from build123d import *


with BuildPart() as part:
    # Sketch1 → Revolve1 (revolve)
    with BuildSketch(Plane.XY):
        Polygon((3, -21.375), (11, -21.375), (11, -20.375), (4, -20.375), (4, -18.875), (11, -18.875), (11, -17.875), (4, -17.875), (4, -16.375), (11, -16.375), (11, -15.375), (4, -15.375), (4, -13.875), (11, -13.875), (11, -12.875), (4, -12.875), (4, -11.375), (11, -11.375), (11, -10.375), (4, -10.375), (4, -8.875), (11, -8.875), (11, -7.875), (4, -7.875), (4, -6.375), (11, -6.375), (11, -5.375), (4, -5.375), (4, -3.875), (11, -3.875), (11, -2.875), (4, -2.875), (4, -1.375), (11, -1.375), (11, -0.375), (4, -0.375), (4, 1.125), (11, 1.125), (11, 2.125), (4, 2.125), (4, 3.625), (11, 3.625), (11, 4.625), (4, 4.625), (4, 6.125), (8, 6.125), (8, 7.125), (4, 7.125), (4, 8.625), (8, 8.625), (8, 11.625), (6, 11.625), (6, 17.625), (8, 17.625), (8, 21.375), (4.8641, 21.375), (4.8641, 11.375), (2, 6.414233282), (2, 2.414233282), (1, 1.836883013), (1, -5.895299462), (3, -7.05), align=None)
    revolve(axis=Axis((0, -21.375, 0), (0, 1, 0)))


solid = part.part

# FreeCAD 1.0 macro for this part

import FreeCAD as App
import Part
import Sketcher
from FreeCAD import Vector
Q = App.Units.Quantity

doc = App.newDocument("Part")
body = doc.addObject("PartDesign::Body", "Body")

sketch1 = body.newObject("Sketcher::SketchObject", "Sketch")
sketch1.AttachmentSupport = (doc.getObject("XY_Plane"), [""])
sketch1.MapMode = "FlatFace"
sketch1.addGeometry([
    Part.LineSegment(Vector(3, -21.4, 0), Vector(11, -21.4, 0)),
    Part.LineSegment(Vector(11, -21.4, 0), Vector(11, -20.4, 0)),
    Part.LineSegment(Vector(11, -20.4, 0), Vector(4, -20.4, 0)),
    Part.LineSegment(Vector(4, -20.4, 0), Vector(4, -18.9, 0)),
    Part.LineSegment(Vector(4, -18.9, 0), Vector(11, -18.9, 0)),
    Part.LineSegment(Vector(11, -18.9, 0), Vector(11, -17.9, 0)),
    Part.LineSegment(Vector(11, -17.9, 0), Vector(4, -17.9, 0)),
    Part.LineSegment(Vector(4, -17.9, 0), Vector(4, -16.4, 0)),
    Part.LineSegment(Vector(4, -16.4, 0), Vector(11, -16.4, 0)),
    Part.LineSegment(Vector(11, -16.4, 0), Vector(11, -15.4, 0)),
    Part.LineSegment(Vector(11, -15.4, 0), Vector(4, -15.4, 0)),
    Part.LineSegment(Vector(4, -15.4, 0), Vector(4, -13.9, 0)),
    Part.LineSegment(Vector(4, -13.9, 0), Vector(11, -13.9, 0)),
    Part.LineSegment(Vector(11, -13.9, 0), Vector(11, -12.9, 0)),
    Part.LineSegment(Vector(11, -12.9, 0), Vector(4, -12.9, 0)),
    Part.LineSegment(Vector(4, -12.9, 0), Vector(4, -11.4, 0)),
    Part.LineSegment(Vector(4, -11.4, 0), Vector(11, -11.4, 0)),
    Part.LineSegment(Vector(11, -11.4, 0), Vector(11, -10.4, 0)),
    Part.LineSegment(Vector(11, -10.4, 0), Vector(4, -10.4, 0)),
    Part.LineSegment(Vector(4, -10.4, 0), Vector(4, -8.9, 0)),
    Part.LineSegment(Vector(4, -8.9, 0), Vector(11, -8.9, 0)),
    Part.LineSegment(Vector(11, -8.9, 0), Vector(11, -7.9, 0)),
    Part.LineSegment(Vector(11, -7.9, 0), Vector(4, -7.9, 0)),
    Part.LineSegment(Vector(4, -7.9, 0), Vector(4, -6.4, 0)),
    Part.LineSegment(Vector(4, -6.4, 0), Vector(11, -6.4, 0)),
    Part.LineSegment(Vector(11, -6.4, 0), Vector(11, -5.4, 0)),
    Part.LineSegment(Vector(11, -5.4, 0), Vector(4, -5.4, 0)),
    Part.LineSegment(Vector(4, -5.4, 0), Vector(4, -3.9, 0)),
    Part.LineSegment(Vector(4, -3.9, 0), Vector(11, -3.9, 0)),
    Part.LineSegment(Vector(11, -3.9, 0), Vector(11, -2.9, 0)),
    Part.LineSegment(Vector(11, -2.9, 0), Vector(4, -2.9, 0)),
    Part.LineSegment(Vector(4, -2.9, 0), Vector(4, -1.4, 0)),
    Part.LineSegment(Vector(4, -1.4, 0), Vector(11, -1.4, 0)),
    Part.LineSegment(Vector(11, -1.4, 0), Vector(11, -0.4, 0)),
    Part.LineSegment(Vector(11, -0.4, 0), Vector(4, -0.4, 0)),
    Part.LineSegment(Vector(4, -0.4, 0), Vector(4, 1.1, 0)),
    Part.LineSegment(Vector(4, 1.1, 0), Vector(11, 1.1, 0)),
    Part.LineSegment(Vector(11, 1.1, 0), Vector(11, 2.1, 0)),
    Part.LineSegment(Vector(11, 2.1, 0), Vector(4, 2.1, 0)),
    Part.LineSegment(Vector(4, 2.1, 0), Vector(4, 3.6, 0)),
    Part.LineSegment(Vector(4, 3.6, 0), Vector(11, 3.6, 0)),
    Part.LineSegment(Vector(11, 3.6, 0), Vector(11, 4.6, 0)),
    Part.LineSegment(Vector(11, 4.6, 0), Vector(4, 4.6, 0)),
    Part.LineSegment(Vector(4, 4.6, 0), Vector(4, 6.1, 0)),
    Part.LineSegment(Vector(4, 6.1, 0), Vector(8, 6.1, 0)),
    Part.LineSegment(Vector(8, 6.1, 0), Vector(8, 7.1, 0)),
    Part.LineSegment(Vector(8, 7.1, 0), Vector(4, 7.1, 0)),
    Part.LineSegment(Vector(4, 7.1, 0), Vector(4, 8.6, 0)),
    Part.LineSegment(Vector(4, 8.6, 0), Vector(8, 8.6, 0)),
    Part.LineSegment(Vector(8, 8.6, 0), Vector(8, 11.6, 0)),
    Part.LineSegment(Vector(8, 11.6, 0), Vector(6, 11.6, 0)),
    Part.LineSegment(Vector(6, 11.6, 0), Vector(6, 17.6, 0)),
    Part.LineSegment(Vector(6, 17.6, 0), Vector(8, 17.6, 0)),
    Part.LineSegment(Vector(8, 17.6, 0), Vector(8, 21.4, 0)),
    Part.LineSegment(Vector(8, 21.4, 0), Vector(4.9, 21.4, 0)),
    Part.LineSegment(Vector(4.9, 21.4, 0), Vector(4.9, 11.4, 0)),
    Part.LineSegment(Vector(4.9, 11.4, 0), Vector(2, 6.4, 0)),
    Part.LineSegment(Vector(2, 6.4, 0), Vector(2, 2.4, 0)),
    Part.LineSegment(Vector(2, 2.4, 0), Vector(1, 1.8, 0)),
    Part.LineSegment(Vector(1, 1.8, 0), Vector(1, -5.9, 0)),
    Part.LineSegment(Vector(1, -5.9, 0), Vector(3, -7, 0)),
    Part.LineSegment(Vector(3, -7, 0), Vector(3, -21.4, 0)),
], False)
sketch1.addConstraint([
    Sketcher.Constraint("Coincident", 0, 2, 1, 1),
    Sketcher.Constraint("Coincident", 1, 2, 2, 1),
    Sketcher.Constraint("Coincident", 2, 2, 3, 1),
    Sketcher.Constraint("Coincident", 3, 2, 4, 1),
    Sketcher.Constraint("Coincident", 4, 2, 5, 1),
    Sketcher.Constraint("Coincident", 5, 2, 6, 1),
    Sketcher.Constraint("Coincident", 6, 2, 7, 1),
    Sketcher.Constraint("Coincident", 7, 2, 8, 1),
    Sketcher.Constraint("Coincident", 8, 2, 9, 1),
    Sketcher.Constraint("Coincident", 9, 2, 10, 1),
    Sketcher.Constraint("Coincident", 10, 2, 11, 1),
    Sketcher.Constraint("Coincident", 11, 2, 12, 1),
    Sketcher.Constraint("Coincident", 12, 2, 13, 1),
    Sketcher.Constraint("Coincident", 13, 2, 14, 1),
    Sketcher.Constraint("Coincident", 14, 2, 15, 1),
    Sketcher.Constraint("Coincident", 15, 2, 16, 1),
    Sketcher.Constraint("Coincident", 16, 2, 17, 1),
    Sketcher.Constraint("Coincident", 17, 2, 18, 1),
    Sketcher.Constraint("Coincident", 18, 2, 19, 1),
    Sketcher.Constraint("Coincident", 19, 2, 20, 1),
    Sketcher.Constraint("Coincident", 20, 2, 21, 1),
    Sketcher.Constraint("Coincident", 21, 2, 22, 1),
    Sketcher.Constraint("Coincident", 22, 2, 23, 1),
    Sketcher.Constraint("Coincident", 23, 2, 24, 1),
    Sketcher.Constraint("Coincident", 24, 2, 25, 1),
    Sketcher.Constraint("Coincident", 25, 2, 26, 1),
    Sketcher.Constraint("Coincident", 26, 2, 27, 1),
    Sketcher.Constraint("Coincident", 27, 2, 28, 1),
    Sketcher.Constraint("Coincident", 28, 2, 29, 1),
    Sketcher.Constraint("Coincident", 29, 2, 30, 1),
    Sketcher.Constraint("Coincident", 30, 2, 31, 1),
    Sketcher.Constraint("Coincident", 31, 2, 32, 1),
    Sketcher.Constraint("Coincident", 32, 2, 33, 1),
    Sketcher.Constraint("Coincident", 33, 2, 34, 1),
    Sketcher.Constraint("Coincident", 34, 2, 35, 1),
    Sketcher.Constraint("Coincident", 35, 2, 36, 1),
    Sketcher.Constraint("Coincident", 36, 2, 37, 1),
    Sketcher.Constraint("Coincident", 37, 2, 38, 1),
    Sketcher.Constraint("Coincident", 38, 2, 39, 1),
    Sketcher.Constraint("Coincident", 39, 2, 40, 1),
    Sketcher.Constraint("Coincident", 40, 2, 41, 1),
    Sketcher.Constraint("Coincident", 41, 2, 42, 1),
    Sketcher.Constraint("Coincident", 42, 2, 43, 1),
    Sketcher.Constraint("Coincident", 43, 2, 44, 1),
    Sketcher.Constraint("Coincident", 44, 2, 45, 1),
    Sketcher.Constraint("Coincident", 45, 2, 46, 1),
    Sketcher.Constraint("Coincident", 46, 2, 47, 1),
    Sketcher.Constraint("Coincident", 47, 2, 48, 1),
    Sketcher.Constraint("Coincident", 48, 2, 49, 1),
    Sketcher.Constraint("Coincident", 49, 2, 50, 1),
    Sketcher.Constraint("Coincident", 50, 2, 51, 1),
    Sketcher.Constraint("Coincident", 51, 2, 52, 1),
    Sketcher.Constraint("Coincident", 52, 2, 53, 1),
    Sketcher.Constraint("Coincident", 53, 2, 54, 1),
    Sketcher.Constraint("Coincident", 54, 2, 55, 1),
    Sketcher.Constraint("Coincident", 55, 2, 56, 1),
    Sketcher.Constraint("Coincident", 56, 2, 57, 1),
    Sketcher.Constraint("Coincident", 57, 2, 58, 1),
    Sketcher.Constraint("Coincident", 58, 2, 59, 1),
    Sketcher.Constraint("Coincident", 59, 2, 60, 1),
    Sketcher.Constraint("Coincident", 60, 2, 61, 1),
    Sketcher.Constraint("Coincident", 61, 2, 0, 1),
    Sketcher.Constraint("Horizontal", 0),
    Sketcher.Constraint("Vertical", 1),
    Sketcher.Constraint("Horizontal", 2),
    Sketcher.Constraint("Vertical", 3),
    Sketcher.Constraint("Horizontal", 4),
    Sketcher.Constraint("Vertical", 5),
    Sketcher.Constraint("Horizontal", 6),
    Sketcher.Constraint("Vertical", 7),
    Sketcher.Constraint("Horizontal", 8),
    Sketcher.Constraint("Vertical", 9),
    Sketcher.Constraint("Horizontal", 10),
    Sketcher.Constraint("Vertical", 11),
    Sketcher.Constraint("Horizontal", 12),
    Sketcher.Constraint("Vertical", 13),
    Sketcher.Constraint("Horizontal", 14),
    Sketcher.Constraint("Vertical", 15),
    Sketcher.Constraint("Horizontal", 16),
    Sketcher.Constraint("Vertical", 17),
    Sketcher.Constraint("Horizontal", 18),
    Sketcher.Constraint("Vertical", 19),
    Sketcher.Constraint("Horizontal", 20),
    Sketcher.Constraint("Vertical", 21),
    Sketcher.Constraint("Horizontal", 22),
    Sketcher.Constraint("Vertical", 23),
    Sketcher.Constraint("Horizontal", 24),
    Sketcher.Constraint("Vertical", 25),
    Sketcher.Constraint("Horizontal", 26),
    Sketcher.Constraint("Vertical", 27),
    Sketcher.Constraint("Horizontal", 28),
    Sketcher.Constraint("Vertical", 29),
    Sketcher.Constraint("Horizontal", 30),
    Sketcher.Constraint("Vertical", 31),
    Sketcher.Constraint("Horizontal", 32),
    Sketcher.Constraint("Vertical", 33),
    Sketcher.Constraint("Horizontal", 34),
    Sketcher.Constraint("Vertical", 35),
    Sketcher.Constraint("Horizontal", 36),
    Sketcher.Constraint("Vertical", 37),
    Sketcher.Constraint("Horizontal", 38),
    Sketcher.Constraint("Vertical", 39),
    Sketcher.Constraint("Horizontal", 40),
    Sketcher.Constraint("Vertical", 41),
    Sketcher.Constraint("Horizontal", 42),
    Sketcher.Constraint("Vertical", 43),
    Sketcher.Constraint("Horizontal", 44),
    Sketcher.Constraint("Vertical", 45),
    Sketcher.Constraint("Horizontal", 46),
    Sketcher.Constraint("Vertical", 47),
    Sketcher.Constraint("Horizontal", 48),
    Sketcher.Constraint("Vertical", 49),
    Sketcher.Constraint("Horizontal", 50),
    Sketcher.Constraint("Vertical", 51),
    Sketcher.Constraint("Horizontal", 52),
    Sketcher.Constraint("Vertical", 53),
    Sketcher.Constraint("Horizontal", 54),
    Sketcher.Constraint("Vertical", 55),
    Sketcher.Constraint("Vertical", 57),
    Sketcher.Constraint("Vertical", 59),
    Sketcher.Constraint("Vertical", 61),
    Sketcher.Constraint("Perpendicular", 56, 60),
    Sketcher.Constraint("Vertical", 1, 2, 4, 2),
    Sketcher.Constraint("Vertical", 3, 2, 6, 2),
    Sketcher.Constraint("Vertical", 5, 2, 8, 2),
    Sketcher.Constraint("Vertical", 7, 2, 10, 2),
    Sketcher.Constraint("Vertical", 9, 2, 12, 2),
    Sketcher.Constraint("Vertical", 11, 2, 14, 2),
    Sketcher.Constraint("Vertical", 13, 2, 16, 2),
    Sketcher.Constraint("Vertical", 15, 2, 18, 2),
    Sketcher.Constraint("Vertical", 17, 2, 20, 2),
    Sketcher.Constraint("Vertical", 19, 2, 22, 2),
    Sketcher.Constraint("Vertical", 21, 2, 24, 2),
    Sketcher.Constraint("Vertical", 23, 2, 26, 2),
    Sketcher.Constraint("Vertical", 25, 2, 28, 2),
    Sketcher.Constraint("Vertical", 27, 2, 30, 2),
    Sketcher.Constraint("Vertical", 29, 2, 32, 2),
    Sketcher.Constraint("Vertical", 31, 2, 34, 2),
    Sketcher.Constraint("Vertical", 33, 2, 36, 2),
    Sketcher.Constraint("Vertical", 35, 2, 38, 2),
    Sketcher.Constraint("Vertical", 37, 2, 40, 2),
    Sketcher.Constraint("Vertical", 39, 2, 42, 2),
    Sketcher.Constraint("Vertical", 43, 2, 46, 2),
    Sketcher.Constraint("Vertical", 45, 2, 48, 2),
    Sketcher.Constraint("Vertical", 49, 2, 52, 2),
    Sketcher.Constraint("Equal", 1, 5),
    Sketcher.Constraint("Equal", 3, 7),
    Sketcher.Constraint("Equal", 5, 9),
    Sketcher.Constraint("Equal", 7, 11),
    Sketcher.Constraint("Equal", 9, 13),
    Sketcher.Constraint("Equal", 11, 15),
    Sketcher.Constraint("Equal", 13, 17),
    Sketcher.Constraint("Equal", 15, 19),
    Sketcher.Constraint("Equal", 17, 21),
    Sketcher.Constraint("Equal", 19, 23),
    Sketcher.Constraint("Equal", 21, 25),
    Sketcher.Constraint("Equal", 23, 27),
    Sketcher.Constraint("Equal", 25, 29),
    Sketcher.Constraint("Equal", 27, 31),
    Sketcher.Constraint("Equal", 29, 33),
    Sketcher.Constraint("Equal", 31, 35),
    Sketcher.Constraint("Equal", 33, 37),
    Sketcher.Constraint("Equal", 35, 39),
    Sketcher.Constraint("Equal", 37, 41),
    Sketcher.Constraint("Equal", 39, 43),
    Sketcher.Constraint("Equal", 41, 45),
    Sketcher.Constraint("Equal", 43, 47),
    Sketcher.Constraint("Equal", 48, 57),
    Sketcher.Constraint("DistanceX", 0, 1, 0, 2, Q("8 mm")),
    Sketcher.Constraint("DistanceX", 2, 2, 2, 1, Q("7 mm")),
    Sketcher.Constraint("DistanceX", 44, 1, 44, 2, Q("4 mm")),
    Sketcher.Constraint("DistanceX", 50, 2, 50, 1, Q("2 mm")),
    Sketcher.Constraint("DistanceY", 1, 1, 1, 2, Q("1 mm")),
    Sketcher.Constraint("DistanceY", 49, 1, 49, 2, Q("3 mm")),
    Sketcher.Constraint("DistanceY", 51, 1, 51, 2, Q("6 mm")),
    Sketcher.Constraint("DistanceY", 55, 2, 55, 1, Q("10 mm")),
    Sketcher.Constraint("Angle", 56, Q("-120 deg")),
    Sketcher.Constraint("Angle", 58, Q("-150 deg")),
    Sketcher.Constraint("DistanceY", 3, 1, 3, 2, Q("1.5 mm")),
    Sketcher.Constraint("DistanceX", -1, 1, 0, 2, Q("11 mm")),
    Sketcher.Constraint("DistanceX", -1, 1, 56, 2, Q("2 mm")),
    Sketcher.Constraint("DistanceX", -1, 1, 58, 2, Q("1 mm")),
    Sketcher.Constraint("DistanceY", 53, 1, 53, 2, Q("3.75 mm")),
    Sketcher.Constraint("DistanceY", 61, 2, 61, 1, Q("14.325 mm")),
    Sketcher.Constraint("DistanceY", 60, 2, -1, 1, Q("7.05 mm")),
    Sketcher.Constraint("DistanceX", 54, 2, 54, 1, Q("3.1359 mm")),
])
revolution = body.newObject("PartDesign::Revolution", "Revolution")
revolution.Profile = sketch1
revolution.ReferenceAxis = (sketch1, ["V_Axis"])
revolution.Angle = 360

doc.recompute()
